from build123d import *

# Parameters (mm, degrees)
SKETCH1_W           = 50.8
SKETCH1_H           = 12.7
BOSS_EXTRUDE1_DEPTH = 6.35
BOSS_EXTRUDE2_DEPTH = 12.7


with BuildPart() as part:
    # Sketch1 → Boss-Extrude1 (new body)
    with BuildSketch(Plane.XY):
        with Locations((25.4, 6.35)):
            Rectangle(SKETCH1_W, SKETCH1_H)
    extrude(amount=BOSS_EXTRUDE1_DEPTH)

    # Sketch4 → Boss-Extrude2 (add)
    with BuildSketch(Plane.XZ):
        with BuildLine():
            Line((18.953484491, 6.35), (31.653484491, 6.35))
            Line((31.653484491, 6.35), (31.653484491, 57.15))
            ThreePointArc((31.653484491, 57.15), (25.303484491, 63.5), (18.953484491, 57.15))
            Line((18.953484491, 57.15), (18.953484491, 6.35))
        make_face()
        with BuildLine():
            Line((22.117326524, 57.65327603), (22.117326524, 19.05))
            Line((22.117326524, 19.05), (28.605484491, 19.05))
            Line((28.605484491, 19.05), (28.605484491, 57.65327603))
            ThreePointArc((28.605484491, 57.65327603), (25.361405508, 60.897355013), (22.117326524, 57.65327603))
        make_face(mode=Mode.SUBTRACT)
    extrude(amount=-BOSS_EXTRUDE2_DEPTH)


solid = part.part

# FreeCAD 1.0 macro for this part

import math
import FreeCAD as App
import Part
import Sketcher
Q = App.Units.Quantity


def add_polygon(sketch, points):
    """Adds a closed chain of lines whose ends are joined by coincident constraints."""
    first, n = sketch.GeometryCount, len(points)
    for a, b in zip(points, points[1:] + points[:1]):
        sketch.addGeometry(Part.LineSegment(App.Vector(*a, 0), App.Vector(*b, 0)), False)
    for i in range(n):
        sketch.addConstraint(Sketcher.Constraint("Coincident", first + i, 2, first + (i + 1) % n, 1))

doc = App.newDocument("Part")
body = doc.addObject("PartDesign::Body", "Body")

# Sketch on XY plane
sketch1 = doc.addObject("Sketcher::SketchObject", "Sketch")
body.addObject(sketch1)
sketch1.AttachmentSupport = (doc.XY_Plane, [""])
sketch1.MapMode = "FlatFace"
add_polygon(sketch1, [(0, 13), (0, 0), (51, 0), (51, 13)])  # lines 0-3
sketch1.addConstraint(Sketcher.Constraint("Vertical", 0))
sketch1.addConstraint(Sketcher.Constraint("Horizontal", 1))
sketch1.addConstraint(Sketcher.Constraint("Vertical", 2))
sketch1.addConstraint(Sketcher.Constraint("Horizontal", 3))
sketch1.addConstraint(Sketcher.Constraint("Coincident", 0, 2, -1, 1))
sketch1.addConstraint(Sketcher.Constraint("DistanceX", 1, 1, 1, 2, Q("2 in")))
sketch1.addConstraint(Sketcher.Constraint("DistanceY", 0, 2, 0, 1, Q("0.5 in")))
pad1 = doc.addObject("PartDesign::Pad", "Pad")
body.addObject(pad1)
pad1.Profile = sketch1
pad1.Length = Q("0.25 in")

# Sketch on XZ plane
sketch2 = doc.addObject("Sketcher::SketchObject", "Sketch001")
body.addObject(sketch2)
sketch2.AttachmentSupport = (doc.XZ_Plane, [""])
sketch2.MapMode = "FlatFace"
sketch2.addGeometry(Part.LineSegment(App.Vector(19, 6.3, 0), App.Vector(31.7, 6.3, 0)), False)
sketch2.addGeometry(Part.LineSegment(App.Vector(31.7, 6.3, 0), App.Vector(31.7, 57.1, 0)), False)
sketch2.addGeometry(Part.ArcOfCircle(Part.Circle(App.Vector(25.3, 57.1, 0), App.Vector(0, 0, 1), 6.3), math.radians(0), math.radians(180)), False)
sketch2.addGeometry(Part.LineSegment(App.Vector(19, 57.1, 0), App.Vector(19, 6.3, 0)), False)
sketch2.addGeometry(Part.LineSegment(App.Vector(22.1, 19.1, 0), App.Vector(22.1, 57.7, 0)), False)
sketch2.addGeometry(Part.ArcOfCircle(Part.Circle(App.Vector(25.4, 57.7, 0), App.Vector(0, 0, 1), 3.2), math.radians(0), math.radians(180)), False)
sketch2.addGeometry(Part.LineSegment(App.Vector(28.6, 57.7, 0), App.Vector(28.6, 19.1, 0)), False)
sketch2.addGeometry(Part.LineSegment(App.Vector(28.6, 19.1, 0), App.Vector(22.1, 19.1, 0)), False)
sketch2.addConstraint(Sketcher.Constraint("Coincident", 0, 2, 1, 1))
sketch2.addConstraint(Sketcher.Constraint("Tangent", 1, 2, 2, 1))
sketch2.addConstraint(Sketcher.Constraint("Tangent", 2, 2, 3, 1))
sketch2.addConstraint(Sketcher.Constraint("Coincident", 3, 2, 0, 1))
sketch2.addConstraint(Sketcher.Constraint("Tangent", 4, 2, 5, 2))
sketch2.addConstraint(Sketcher.Constraint("Tangent", 5, 1, 6, 1))
sketch2.addConstraint(Sketcher.Constraint("Coincident", 6, 2, 7, 1))
sketch2.addConstraint(Sketcher.Constraint("Coincident", 7, 2, 4, 1))
sketch2.addConstraint(Sketcher.Constraint("Horizontal", 0))
sketch2.addConstraint(Sketcher.Constraint("Vertical", 1))
sketch2.addConstraint(Sketcher.Constraint("Vertical", 3))
sketch2.addConstraint(Sketcher.Constraint("Vertical", 4))
sketch2.addConstraint(Sketcher.Constraint("Vertical", 6))
sketch2.addConstraint(Sketcher.Constraint("Horizontal", 7))
sketch2.addConstraint(Sketcher.Constraint("DistanceY", 1, 1, 1, 2, Q("2 in")))
sketch2.addConstraint(Sketcher.Constraint("Radius", 2, Q("0.25 in")))
sketch2.addConstraint(Sketcher.Constraint("DistanceY", 0, 2, 6, 2, Q("0.5 in")))
sketch2.addConstraint(Sketcher.Constraint("DistanceY", -1, 1, 2, 3, Q("2.25 in")))
sketch2.addConstraint(Sketcher.Constraint("DistanceX", 5, 1, 1, 2, Q("0.12 in")))
sketch2.addConstraint(Sketcher.Constraint("Radius", 5, Q("3.244079 mm")))
sketch2.addConstraint(Sketcher.Constraint("DistanceX", -1, 1, 2, 3, Q("0.9962002 in")))
sketch2.addConstraint(Sketcher.Constraint("DistanceY", 4, 1, 4, 2, Q("38.603276 mm")))
pad2 = doc.addObject("PartDesign::Pad", "Pad001")
body.addObject(pad2)
pad2.Profile = sketch2
pad2.Length = Q("0.5 in")
pad2.Reversed = True

doc.recompute()
